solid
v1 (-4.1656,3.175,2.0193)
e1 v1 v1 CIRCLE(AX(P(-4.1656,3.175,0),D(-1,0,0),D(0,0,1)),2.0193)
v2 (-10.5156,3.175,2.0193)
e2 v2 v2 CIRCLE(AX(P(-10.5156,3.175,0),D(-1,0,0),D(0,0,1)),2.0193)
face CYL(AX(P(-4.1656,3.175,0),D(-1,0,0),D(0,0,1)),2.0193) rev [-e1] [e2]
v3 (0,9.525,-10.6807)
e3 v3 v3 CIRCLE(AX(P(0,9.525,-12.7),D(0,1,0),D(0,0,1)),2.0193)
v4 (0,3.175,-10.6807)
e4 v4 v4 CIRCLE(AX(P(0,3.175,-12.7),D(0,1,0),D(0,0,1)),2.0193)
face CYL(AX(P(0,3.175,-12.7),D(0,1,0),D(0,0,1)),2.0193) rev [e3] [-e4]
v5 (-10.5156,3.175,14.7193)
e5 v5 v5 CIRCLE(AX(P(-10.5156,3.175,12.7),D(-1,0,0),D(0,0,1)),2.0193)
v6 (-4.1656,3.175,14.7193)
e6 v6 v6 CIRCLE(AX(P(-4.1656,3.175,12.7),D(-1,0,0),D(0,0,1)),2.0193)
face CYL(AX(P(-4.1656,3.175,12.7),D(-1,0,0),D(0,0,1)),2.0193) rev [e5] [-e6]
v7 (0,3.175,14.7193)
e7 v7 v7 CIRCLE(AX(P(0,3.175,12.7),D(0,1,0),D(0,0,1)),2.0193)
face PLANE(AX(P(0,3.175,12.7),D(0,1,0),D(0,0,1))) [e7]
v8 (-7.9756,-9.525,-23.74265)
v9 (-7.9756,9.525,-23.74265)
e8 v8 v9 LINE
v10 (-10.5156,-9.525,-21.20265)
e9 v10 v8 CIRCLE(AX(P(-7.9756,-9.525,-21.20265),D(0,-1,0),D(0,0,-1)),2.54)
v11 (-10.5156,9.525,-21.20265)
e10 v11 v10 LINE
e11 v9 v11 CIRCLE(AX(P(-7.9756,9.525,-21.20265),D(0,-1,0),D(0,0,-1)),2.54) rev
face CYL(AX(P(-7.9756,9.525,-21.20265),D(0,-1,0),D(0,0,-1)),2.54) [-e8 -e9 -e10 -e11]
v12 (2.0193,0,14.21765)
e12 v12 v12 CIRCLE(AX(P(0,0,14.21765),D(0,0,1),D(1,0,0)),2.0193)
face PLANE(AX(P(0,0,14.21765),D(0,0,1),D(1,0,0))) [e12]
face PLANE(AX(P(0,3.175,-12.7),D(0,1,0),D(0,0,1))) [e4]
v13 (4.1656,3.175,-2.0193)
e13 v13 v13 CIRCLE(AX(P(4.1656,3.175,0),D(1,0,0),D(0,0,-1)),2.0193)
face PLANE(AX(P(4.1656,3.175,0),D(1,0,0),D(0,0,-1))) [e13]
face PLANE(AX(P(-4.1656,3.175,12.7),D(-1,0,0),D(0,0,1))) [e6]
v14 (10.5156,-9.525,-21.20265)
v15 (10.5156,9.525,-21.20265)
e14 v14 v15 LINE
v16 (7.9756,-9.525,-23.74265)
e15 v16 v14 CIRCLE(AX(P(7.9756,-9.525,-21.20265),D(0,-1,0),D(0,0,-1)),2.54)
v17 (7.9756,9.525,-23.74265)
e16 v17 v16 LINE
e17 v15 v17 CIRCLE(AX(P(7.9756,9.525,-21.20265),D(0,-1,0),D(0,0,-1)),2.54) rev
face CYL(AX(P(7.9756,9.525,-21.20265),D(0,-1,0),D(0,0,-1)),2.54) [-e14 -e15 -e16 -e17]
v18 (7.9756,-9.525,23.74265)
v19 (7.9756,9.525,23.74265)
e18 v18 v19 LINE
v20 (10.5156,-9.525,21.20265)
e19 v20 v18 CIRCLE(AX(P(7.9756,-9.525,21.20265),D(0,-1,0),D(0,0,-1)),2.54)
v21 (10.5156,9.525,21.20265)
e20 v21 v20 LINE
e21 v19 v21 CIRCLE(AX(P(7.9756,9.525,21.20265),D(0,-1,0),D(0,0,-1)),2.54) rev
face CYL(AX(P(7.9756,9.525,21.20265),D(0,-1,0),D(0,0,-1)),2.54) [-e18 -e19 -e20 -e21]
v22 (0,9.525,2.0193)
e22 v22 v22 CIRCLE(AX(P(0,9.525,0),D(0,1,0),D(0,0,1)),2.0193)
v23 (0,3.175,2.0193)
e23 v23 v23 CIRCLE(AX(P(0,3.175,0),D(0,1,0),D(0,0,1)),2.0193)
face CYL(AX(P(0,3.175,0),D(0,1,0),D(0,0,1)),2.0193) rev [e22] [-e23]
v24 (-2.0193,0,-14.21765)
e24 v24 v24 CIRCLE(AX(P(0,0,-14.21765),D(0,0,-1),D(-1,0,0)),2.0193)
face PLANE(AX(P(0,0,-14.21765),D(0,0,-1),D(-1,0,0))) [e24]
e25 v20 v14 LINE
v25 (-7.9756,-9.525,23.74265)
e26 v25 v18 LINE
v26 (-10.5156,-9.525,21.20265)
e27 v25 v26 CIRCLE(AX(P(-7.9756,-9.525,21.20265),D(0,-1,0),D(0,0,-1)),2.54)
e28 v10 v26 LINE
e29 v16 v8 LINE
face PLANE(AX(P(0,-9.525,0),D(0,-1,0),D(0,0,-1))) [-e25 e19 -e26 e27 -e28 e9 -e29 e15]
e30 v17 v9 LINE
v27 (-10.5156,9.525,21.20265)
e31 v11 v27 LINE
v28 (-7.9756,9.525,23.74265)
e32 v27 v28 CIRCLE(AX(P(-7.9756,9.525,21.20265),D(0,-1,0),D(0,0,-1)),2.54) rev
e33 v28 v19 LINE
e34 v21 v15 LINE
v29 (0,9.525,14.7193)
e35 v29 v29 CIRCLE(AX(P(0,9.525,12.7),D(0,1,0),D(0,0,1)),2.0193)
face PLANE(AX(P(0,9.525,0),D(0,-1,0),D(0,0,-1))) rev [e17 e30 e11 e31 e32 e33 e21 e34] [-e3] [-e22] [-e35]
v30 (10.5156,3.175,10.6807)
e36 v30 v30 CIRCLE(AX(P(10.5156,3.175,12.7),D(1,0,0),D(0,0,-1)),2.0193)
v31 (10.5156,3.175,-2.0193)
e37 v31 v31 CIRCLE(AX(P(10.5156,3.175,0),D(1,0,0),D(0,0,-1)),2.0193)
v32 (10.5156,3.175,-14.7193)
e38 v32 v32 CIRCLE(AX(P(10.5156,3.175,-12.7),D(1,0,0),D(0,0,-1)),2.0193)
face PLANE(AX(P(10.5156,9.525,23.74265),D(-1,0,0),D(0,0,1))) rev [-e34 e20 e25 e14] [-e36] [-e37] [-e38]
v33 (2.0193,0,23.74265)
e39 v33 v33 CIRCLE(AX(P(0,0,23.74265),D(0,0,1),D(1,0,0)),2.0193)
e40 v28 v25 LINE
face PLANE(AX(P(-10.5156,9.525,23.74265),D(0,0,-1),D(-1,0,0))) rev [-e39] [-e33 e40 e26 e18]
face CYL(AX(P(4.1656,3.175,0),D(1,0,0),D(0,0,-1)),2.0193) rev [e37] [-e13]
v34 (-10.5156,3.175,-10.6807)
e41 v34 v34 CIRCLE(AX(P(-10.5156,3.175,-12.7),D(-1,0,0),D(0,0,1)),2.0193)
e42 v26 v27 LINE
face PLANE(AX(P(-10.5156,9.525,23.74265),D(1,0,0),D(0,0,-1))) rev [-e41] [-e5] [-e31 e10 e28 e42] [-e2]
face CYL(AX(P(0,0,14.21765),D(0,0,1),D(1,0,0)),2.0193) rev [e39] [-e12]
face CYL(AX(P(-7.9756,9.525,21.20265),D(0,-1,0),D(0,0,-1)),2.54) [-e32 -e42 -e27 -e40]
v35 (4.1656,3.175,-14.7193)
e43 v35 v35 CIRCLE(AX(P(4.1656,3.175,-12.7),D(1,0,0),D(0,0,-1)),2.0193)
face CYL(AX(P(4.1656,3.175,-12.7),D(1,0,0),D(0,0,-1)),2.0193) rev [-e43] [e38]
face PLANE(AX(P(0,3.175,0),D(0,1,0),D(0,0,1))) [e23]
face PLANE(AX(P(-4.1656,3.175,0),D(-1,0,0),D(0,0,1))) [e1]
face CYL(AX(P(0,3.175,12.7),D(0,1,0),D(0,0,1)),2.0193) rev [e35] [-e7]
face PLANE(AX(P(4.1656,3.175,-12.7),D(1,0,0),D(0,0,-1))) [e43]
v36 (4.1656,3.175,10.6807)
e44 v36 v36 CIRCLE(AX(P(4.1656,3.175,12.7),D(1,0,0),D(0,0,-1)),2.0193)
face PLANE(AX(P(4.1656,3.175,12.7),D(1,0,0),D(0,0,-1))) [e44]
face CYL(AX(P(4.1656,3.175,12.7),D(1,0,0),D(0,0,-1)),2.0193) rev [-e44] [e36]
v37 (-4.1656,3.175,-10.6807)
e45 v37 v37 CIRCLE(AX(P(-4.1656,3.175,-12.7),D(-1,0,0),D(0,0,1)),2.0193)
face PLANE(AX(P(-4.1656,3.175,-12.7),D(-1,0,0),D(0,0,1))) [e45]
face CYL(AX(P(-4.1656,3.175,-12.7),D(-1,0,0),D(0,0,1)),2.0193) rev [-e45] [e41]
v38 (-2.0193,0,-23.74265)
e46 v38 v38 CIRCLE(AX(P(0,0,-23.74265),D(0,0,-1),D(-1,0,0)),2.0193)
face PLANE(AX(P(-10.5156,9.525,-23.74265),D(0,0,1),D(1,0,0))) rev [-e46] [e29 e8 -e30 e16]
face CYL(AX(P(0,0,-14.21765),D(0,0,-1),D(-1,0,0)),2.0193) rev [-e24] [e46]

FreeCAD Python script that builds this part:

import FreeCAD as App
import Part
import Sketcher
from FreeCAD import Vector
Q = App.Units.Quantity


def edges_at(feature, points):
    """Names of the edges that pass closest to the given points."""
    edges = feature.Shape.Edges
    near = lambda p: min(range(len(edges)), key=lambda i: edges[i].distToShape(Part.Vertex(*p))[0])
    return sorted({f"Edge{near(p) + 1}" for p in points})


def add_polygon(sketch, points):
    """Adds a closed chain of lines whose ends are joined by coincident constraints."""
    first, n = sketch.GeometryCount, len(points)
    for a, b in zip(points, points[1:] + points[:1]):
        sketch.addGeometry(Part.LineSegment(App.Vector(*a, 0), App.Vector(*b, 0)), False)
    for i in range(n):
        sketch.addConstraint(Sketcher.Constraint("Coincident", first + i, 2, first + (i + 1) % n, 1))

doc = App.newDocument("Part")
body = doc.addObject("PartDesign::Body", "Body")

# Sketch on XZ plane
sketch1 = body.newObject("Sketcher::SketchObject", "Sketch")
sketch1.AttachmentSupport = (doc.getObject("XZ_Plane"), [""])
sketch1.MapMode = "FlatFace"
add_polygon(sketch1, [(-10.5156, -23.74265), (-10.5156, 23.74265), (10.5156, 23.74265), (10.5156, -23.74265)])  # lines 0-3
sketch1.addConstraint([
    Sketcher.Constraint("Vertical", 0),
    Sketcher.Constraint("Horizontal", 1),
    Sketcher.Constraint("Vertical", 2),
    Sketcher.Constraint("Horizontal", 3),
    Sketcher.Constraint("Symmetric", 0, 2, 2, 2, -1, 1),
    Sketcher.Constraint("DistanceX", 1, 1, 1, 2, Q("0.828 in")),
    Sketcher.Constraint("DistanceY", 0, 1, 0, 2, Q("1.8695 in")),
])
pad1 = body.newObject("PartDesign::Pad", "Pad")
pad1.Profile = sketch1
pad1.Length = Q("0.75 in")
pad1.Midplane = True

# Sketch on XY plane
sketch2 = body.newObject("Sketcher::SketchObject", "Sketch001")
sketch2.AttachmentSupport = (doc.getObject("XY_Plane"), [""])
sketch2.MapMode = "FlatFace"
sketch2.AttachmentOffset = App.Placement(Vector(0, 0, 23.74265), App.Rotation())
sketch2.addGeometry(Part.Circle(Vector(0, 0, 0), Vector(0, 0, 1), 2.0193), False)
sketch2.addConstraint([
    Sketcher.Constraint("Coincident", 0, 3, -1, 1),
    Sketcher.Constraint("Diameter", 0, Q("0.159 in")),
])
pocket1 = body.newObject("PartDesign::Pocket", "Pocket")
pocket1.Profile = sketch2
pocket1.Length = Q("0.375 in")

# Sketch on XY plane
sketch3 = body.newObject("Sketcher::SketchObject", "Sketch002")
sketch3.AttachmentSupport = (doc.getObject("XY_Plane"), [""])
sketch3.MapMode = "FlatFace"
sketch3.AttachmentOffset = App.Placement(Vector(0, 0, -23.74265), App.Rotation())
sketch3.addGeometry(Part.Circle(Vector(0, 0, 0), Vector(0, 0, 1), 2.0193), False)
sketch3.addConstraint([
    Sketcher.Constraint("Coincident", 0, 3, -1, 1),
    Sketcher.Constraint("Diameter", 0, Q("0.159 in")),
])
pocket2 = body.newObject("PartDesign::Pocket", "Pocket001")
pocket2.Profile = sketch3
pocket2.Length = Q("0.375 in")
pocket2.Reversed = True

# Sketch on YZ plane
sketch4 = body.newObject("Sketcher::SketchObject", "Sketch003")
sketch4.AttachmentSupport = (doc.getObject("YZ_Plane"), [""])
sketch4.MapMode = "FlatFace"
sketch4.AttachmentOffset = App.Placement(Vector(0, 0, 0.414 * 25.4), App.Rotation())
sketch4.addGeometry([
    Part.Circle(Vector(3.175, 12.7, 0), Vector(0, 0, 1), 2.0193),
    Part.Circle(Vector(3.175, -12.7, 0), Vector(0, 0, 1), 2.0193),
    Part.Circle(Vector(3.175, 0, 0), Vector(0, 0, 1), 2.0193),
], False)
sketch4.addConstraint([
    Sketcher.Constraint("Equal", 0, 1),
    Sketcher.Constraint("Equal", 1, 2),
    Sketcher.Constraint("Symmetric", 0, 3, 1, 3, -1),
    Sketcher.Constraint("PointOnObject", 2, 3, -1),
    Sketcher.Constraint("Vertical", 1, 3, 2, 3),
    Sketcher.Constraint("Diameter", 0, Q("0.159 in")),
    Sketcher.Constraint("DistanceY", 1, 3, 0, 3, Q("1 in")),
    Sketcher.Constraint("DistanceX", -1, 1, 0, 3, Q("0.125 in")),
])
pocket3 = body.newObject("PartDesign::Pocket", "Pocket002")
pocket3.Profile = sketch4
pocket3.Length = Q("0.25 in")

# Sketch on YZ plane
sketch5 = body.newObject("Sketcher::SketchObject", "Sketch004")
sketch5.AttachmentSupport = (doc.getObject("YZ_Plane"), [""])
sketch5.MapMode = "FlatFace"
sketch5.AttachmentOffset = App.Placement(Vector(0, 0, -0.414 * 25.4), App.Rotation())
sketch5.addGeometry([
    Part.Circle(Vector(3.175, -12.7, 0), Vector(0, 0, 1), 2.0193),
    Part.Circle(Vector(3.175, 0, 0), Vector(0, 0, 1), 2.0193),
    Part.Circle(Vector(3.175, 12.7, 0), Vector(0, 0, 1), 2.0193),
], False)
sketch5.addConstraint([
    Sketcher.Constraint("Equal", 0, 1),
    Sketcher.Constraint("Equal", 1, 2),
    Sketcher.Constraint("Symmetric", 0, 3, 2, 3, -1),
    Sketcher.Constraint("PointOnObject", 1, 3, -1),
    Sketcher.Constraint("Vertical", 0, 3, 1, 3),
    Sketcher.Constraint("Diameter", 0, Q("0.159 in")),
    Sketcher.Constraint("DistanceY", 0, 3, 2, 3, Q("1 in")),
    Sketcher.Constraint("DistanceX", -1, 1, 0, 3, Q("0.125 in")),
])
pocket4 = body.newObject("PartDesign::Pocket", "Pocket003")
pocket4.Profile = sketch5
pocket4.Length = Q("0.25 in")
pocket4.Reversed = True

# Sketch on XZ plane
sketch6 = body.newObject("Sketcher::SketchObject", "Sketch005")
sketch6.AttachmentSupport = (doc.getObject("XZ_Plane"), [""])
sketch6.MapMode = "FlatFace"
sketch6.AttachmentOffset = App.Placement(Vector(0, 0, -0.375 * 25.4), App.Rotation())
sketch6.addGeometry([
    Part.Circle(Vector(0, -12.7, 0), Vector(0, 0, 1), 2.0193),
    Part.Circle(Vector(0, 0, 0), Vector(0, 0, 1), 2.0193),
    Part.Circle(Vector(0, 12.7, 0), Vector(0, 0, 1), 2.0193),
], False)
sketch6.addConstraint([
    Sketcher.Constraint("Coincident", 1, 3, -1, 1),
    Sketcher.Constraint("Equal", 0, 1),
    Sketcher.Constraint("Equal", 1, 2),
    Sketcher.Constraint("Symmetric", 0, 3, 2, 3, -1, 1),
    Sketcher.Constraint("PointOnObject", 0, 3, -2),
    Sketcher.Constraint("Diameter", 0, Q("0.159 in")),
    Sketcher.Constraint("DistanceY", 0, 3, 2, 3, Q("1 in")),
])
pocket5 = body.newObject("PartDesign::Pocket", "Pocket004")
pocket5.Profile = sketch6
pocket5.Length = Q("0.25 in")
pocket5.Reversed = True
doc.recompute()

fillet = body.newObject("PartDesign::Fillet", "Fillet")
fillet.Base = (pocket5, edges_at(pocket5, [
    (10.516, 0, 23.743),
    (-10.516, 0, 23.743),
    (-10.516, 0, -23.743),
    (10.516, 0, -23.743),
]))
fillet.Radius = Q("0.1 in")

doc.recompute()
